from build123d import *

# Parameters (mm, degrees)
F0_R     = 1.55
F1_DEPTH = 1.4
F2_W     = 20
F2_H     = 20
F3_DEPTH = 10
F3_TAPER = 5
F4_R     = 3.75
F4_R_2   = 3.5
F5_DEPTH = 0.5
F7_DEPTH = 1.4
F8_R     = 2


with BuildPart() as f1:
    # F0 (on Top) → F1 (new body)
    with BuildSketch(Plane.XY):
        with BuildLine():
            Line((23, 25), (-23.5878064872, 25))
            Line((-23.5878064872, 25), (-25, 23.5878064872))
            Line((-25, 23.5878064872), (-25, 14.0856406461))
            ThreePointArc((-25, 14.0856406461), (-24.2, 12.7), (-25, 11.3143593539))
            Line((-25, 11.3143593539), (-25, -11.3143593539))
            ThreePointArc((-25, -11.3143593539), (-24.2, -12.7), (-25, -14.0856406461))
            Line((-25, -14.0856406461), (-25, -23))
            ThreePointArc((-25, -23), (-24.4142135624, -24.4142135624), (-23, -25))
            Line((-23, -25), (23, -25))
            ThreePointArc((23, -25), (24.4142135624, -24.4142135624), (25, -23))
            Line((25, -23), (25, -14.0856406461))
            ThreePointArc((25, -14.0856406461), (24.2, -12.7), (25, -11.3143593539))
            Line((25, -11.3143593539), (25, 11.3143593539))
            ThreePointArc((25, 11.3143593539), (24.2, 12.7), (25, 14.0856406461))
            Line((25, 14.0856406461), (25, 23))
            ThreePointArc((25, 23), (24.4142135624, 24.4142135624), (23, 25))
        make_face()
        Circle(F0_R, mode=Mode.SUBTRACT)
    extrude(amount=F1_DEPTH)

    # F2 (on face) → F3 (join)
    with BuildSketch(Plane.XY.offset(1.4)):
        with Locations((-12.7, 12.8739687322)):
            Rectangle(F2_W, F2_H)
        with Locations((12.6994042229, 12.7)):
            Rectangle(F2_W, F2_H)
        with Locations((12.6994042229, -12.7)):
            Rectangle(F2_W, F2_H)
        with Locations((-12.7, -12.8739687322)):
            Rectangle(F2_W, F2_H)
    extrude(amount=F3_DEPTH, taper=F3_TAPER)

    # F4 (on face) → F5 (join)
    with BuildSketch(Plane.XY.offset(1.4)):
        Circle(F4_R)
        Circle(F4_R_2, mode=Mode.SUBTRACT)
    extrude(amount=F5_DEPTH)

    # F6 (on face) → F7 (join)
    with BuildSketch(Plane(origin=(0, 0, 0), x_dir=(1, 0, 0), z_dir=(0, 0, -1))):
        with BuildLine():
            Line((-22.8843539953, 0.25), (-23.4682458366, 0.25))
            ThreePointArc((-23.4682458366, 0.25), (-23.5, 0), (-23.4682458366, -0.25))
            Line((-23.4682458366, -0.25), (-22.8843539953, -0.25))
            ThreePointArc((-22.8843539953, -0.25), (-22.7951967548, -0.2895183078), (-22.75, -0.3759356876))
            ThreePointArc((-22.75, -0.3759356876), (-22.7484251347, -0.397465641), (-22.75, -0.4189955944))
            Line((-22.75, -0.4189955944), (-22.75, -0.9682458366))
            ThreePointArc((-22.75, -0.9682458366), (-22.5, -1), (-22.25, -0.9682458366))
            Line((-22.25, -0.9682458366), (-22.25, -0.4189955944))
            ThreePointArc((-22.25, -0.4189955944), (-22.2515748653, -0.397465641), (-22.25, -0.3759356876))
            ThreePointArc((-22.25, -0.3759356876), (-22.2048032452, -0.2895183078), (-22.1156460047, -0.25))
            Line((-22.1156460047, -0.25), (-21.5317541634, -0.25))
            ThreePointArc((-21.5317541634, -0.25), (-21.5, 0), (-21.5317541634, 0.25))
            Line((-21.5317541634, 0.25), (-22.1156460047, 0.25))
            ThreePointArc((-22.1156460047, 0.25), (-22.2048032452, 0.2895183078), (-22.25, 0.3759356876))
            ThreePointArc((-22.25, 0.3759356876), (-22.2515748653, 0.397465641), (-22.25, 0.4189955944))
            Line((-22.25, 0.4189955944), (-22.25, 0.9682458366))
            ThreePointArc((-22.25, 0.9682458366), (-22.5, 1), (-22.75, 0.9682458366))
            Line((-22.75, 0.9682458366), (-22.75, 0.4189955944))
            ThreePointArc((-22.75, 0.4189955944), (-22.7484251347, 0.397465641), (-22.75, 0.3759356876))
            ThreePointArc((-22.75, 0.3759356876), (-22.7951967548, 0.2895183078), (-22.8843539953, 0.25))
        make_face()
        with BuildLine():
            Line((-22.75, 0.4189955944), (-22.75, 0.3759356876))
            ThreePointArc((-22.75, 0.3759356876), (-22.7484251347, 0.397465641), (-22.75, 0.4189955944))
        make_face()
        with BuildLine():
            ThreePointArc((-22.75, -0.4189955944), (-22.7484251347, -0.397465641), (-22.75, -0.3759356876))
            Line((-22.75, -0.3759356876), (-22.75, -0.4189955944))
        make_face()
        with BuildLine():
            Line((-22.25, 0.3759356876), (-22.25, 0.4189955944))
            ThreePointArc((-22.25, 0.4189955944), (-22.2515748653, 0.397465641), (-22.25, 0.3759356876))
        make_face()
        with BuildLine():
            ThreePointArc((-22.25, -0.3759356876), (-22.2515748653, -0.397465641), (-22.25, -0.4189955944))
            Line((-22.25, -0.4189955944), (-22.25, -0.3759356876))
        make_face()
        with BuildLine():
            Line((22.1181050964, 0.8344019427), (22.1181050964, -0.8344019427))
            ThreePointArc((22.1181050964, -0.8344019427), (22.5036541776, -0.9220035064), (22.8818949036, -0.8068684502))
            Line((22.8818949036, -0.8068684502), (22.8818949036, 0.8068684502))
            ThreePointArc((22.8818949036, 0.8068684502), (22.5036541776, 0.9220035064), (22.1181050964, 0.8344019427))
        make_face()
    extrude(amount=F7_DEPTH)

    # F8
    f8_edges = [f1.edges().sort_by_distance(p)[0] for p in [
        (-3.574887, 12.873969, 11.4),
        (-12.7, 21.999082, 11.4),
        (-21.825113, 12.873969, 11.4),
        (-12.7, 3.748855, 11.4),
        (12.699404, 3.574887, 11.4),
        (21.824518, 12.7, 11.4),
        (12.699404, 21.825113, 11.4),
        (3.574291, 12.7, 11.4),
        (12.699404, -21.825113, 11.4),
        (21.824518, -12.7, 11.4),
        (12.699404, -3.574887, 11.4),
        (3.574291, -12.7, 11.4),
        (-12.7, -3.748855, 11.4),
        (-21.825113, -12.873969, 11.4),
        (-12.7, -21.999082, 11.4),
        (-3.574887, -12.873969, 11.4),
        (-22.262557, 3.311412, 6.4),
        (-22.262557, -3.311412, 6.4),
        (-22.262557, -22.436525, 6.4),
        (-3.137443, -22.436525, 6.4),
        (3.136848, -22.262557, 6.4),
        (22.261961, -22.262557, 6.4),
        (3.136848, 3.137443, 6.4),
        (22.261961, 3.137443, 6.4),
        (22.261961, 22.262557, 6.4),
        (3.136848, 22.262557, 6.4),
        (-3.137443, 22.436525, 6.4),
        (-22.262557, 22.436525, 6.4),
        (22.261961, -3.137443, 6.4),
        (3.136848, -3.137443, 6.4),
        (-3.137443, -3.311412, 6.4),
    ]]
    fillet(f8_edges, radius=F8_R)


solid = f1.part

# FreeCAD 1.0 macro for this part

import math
import FreeCAD as App
import Part
import Sketcher
from FreeCAD import Vector
Q = App.Units.Quantity


def edges_at(feature, points):
    """Names of the edges that pass closest to the given points."""
    edges = feature.Shape.Edges
    near = lambda p: min(range(len(edges)), key=lambda i: edges[i].distToShape(Part.Vertex(*p))[0])
    return sorted({f"Edge{near(p) + 1}" for p in points})


def add_polygon(sketch, points):
    """Adds a closed chain of lines whose ends are joined by coincident constraints."""
    first, n = sketch.GeometryCount, len(points)
    for a, b in zip(points, points[1:] + points[:1]):
        sketch.addGeometry(Part.LineSegment(App.Vector(*a, 0), App.Vector(*b, 0)), False)
    for i in range(n):
        sketch.addConstraint(Sketcher.Constraint("Coincident", first + i, 2, first + (i + 1) % n, 1))

doc = App.newDocument("Part")
body = doc.addObject("PartDesign::Body", "Body")

# Sketch on XY plane
sketch1 = body.newObject("Sketcher::SketchObject", "Sketch")
sketch1.AttachmentSupport = (doc.getObject("XY_Plane"), [""])
sketch1.MapMode = "FlatFace"
sketch1.addGeometry([
    Part.LineSegment(Vector(23, 25, 0), Vector(-23.587806, 25, 0)),  # 0
    Part.LineSegment(Vector(-23.587806, 25, 0), Vector(-25, 23.587806, 0)),  # 1
    Part.LineSegment(Vector(-25, 23.587806, 0), Vector(-25, 14.085641, 0)),  # 2
    Part.ArcOfCircle(Part.Circle(Vector(-25.8, 12.7, 0), Vector(0, 0, 1), 1.6), math.radians(-60), math.radians(60)),  # 3
    Part.LineSegment(Vector(-25, 11.314359, 0), Vector(-25, -11.314359, 0)),  # 4
    Part.ArcOfCircle(Part.Circle(Vector(-25.8, -12.7, 0), Vector(0, 0, 1), 1.6), math.radians(-60), math.radians(60)),  # 5
    Part.LineSegment(Vector(-25, -14.085641, 0), Vector(-25, -23, 0)),  # 6
    Part.ArcOfCircle(Part.Circle(Vector(-23, -23, 0), Vector(0, 0, 1), 2), math.radians(180), math.radians(270)),  # 7
    Part.LineSegment(Vector(-23, -25, 0), Vector(23, -25, 0)),  # 8
    Part.ArcOfCircle(Part.Circle(Vector(23, -23, 0), Vector(0, 0, 1), 2), math.radians(-90), math.radians(0)),  # 9
    Part.LineSegment(Vector(25, -23, 0), Vector(25, -14.085641, 0)),  # 10
    Part.ArcOfCircle(Part.Circle(Vector(25.8, -12.7, 0), Vector(0, 0, 1), 1.6), math.radians(120), math.radians(240)),  # 11
    Part.LineSegment(Vector(25, -11.314359, 0), Vector(25, 11.314359, 0)),  # 12
    Part.ArcOfCircle(Part.Circle(Vector(25.8, 12.7, 0), Vector(0, 0, 1), 1.6), math.radians(120), math.radians(240)),  # 13
    Part.LineSegment(Vector(25, 14.085641, 0), Vector(25, 23, 0)),  # 14
    Part.ArcOfCircle(Part.Circle(Vector(23, 23, 0), Vector(0, 0, 1), 2), math.radians(0), math.radians(90)),  # 15
    Part.Circle(Vector(0, 0, 0), Vector(0, 0, 1), 1.55),  # 16
], False)
sketch1.addConstraint([
    Sketcher.Constraint("Coincident", 0, 2, 1, 1),
    Sketcher.Constraint("Coincident", 1, 2, 2, 1),
    Sketcher.Constraint("Coincident", 2, 2, 3, 2),
    Sketcher.Constraint("Coincident", 3, 1, 4, 1),
    Sketcher.Constraint("Coincident", 4, 2, 5, 2),
    Sketcher.Constraint("Coincident", 5, 1, 6, 1),
    Sketcher.Constraint("Tangent", 6, 2, 7, 1),
    Sketcher.Constraint("Tangent", 7, 2, 8, 1),
    Sketcher.Constraint("Tangent", 8, 2, 9, 1),
    Sketcher.Constraint("Tangent", 9, 2, 10, 1),
    Sketcher.Constraint("Coincident", 10, 2, 11, 2),
    Sketcher.Constraint("Coincident", 11, 1, 12, 1),
    Sketcher.Constraint("Coincident", 12, 2, 13, 2),
    Sketcher.Constraint("Coincident", 13, 1, 14, 1),
    Sketcher.Constraint("Tangent", 14, 2, 15, 1),
    Sketcher.Constraint("Tangent", 15, 2, 0, 1),
    Sketcher.Constraint("Horizontal", 0),
    Sketcher.Constraint("Vertical", 2),
    Sketcher.Constraint("Vertical", 4),
    Sketcher.Constraint("Vertical", 6),
    Sketcher.Constraint("Horizontal", 8),
    Sketcher.Constraint("Vertical", 10),
    Sketcher.Constraint("Vertical", 12),
    Sketcher.Constraint("Vertical", 14),
    Sketcher.Constraint("Coincident", 16, 3, -1, 1),
    Sketcher.Constraint("Equal", 3, 5),
    Sketcher.Constraint("Equal", 7, 9),
    Sketcher.Constraint("Equal", 5, 11),
    Sketcher.Constraint("Equal", 11, 13),
    Sketcher.Constraint("Equal", 9, 15),
    Sketcher.Constraint("Symmetric", 3, 3, 11, 3, -1, 1),
    Sketcher.Constraint("Symmetric", 5, 3, 13, 3, -1, 1),
    Sketcher.Constraint("Symmetric", 7, 3, 15, 3, -1, 1),
    Sketcher.Constraint("Symmetric", 5, 3, 11, 3, -2),
    Sketcher.Constraint("Horizontal", 5, 1, 10, 2),
    Sketcher.Constraint("Horizontal", 4, 2, 11, 1),
    Sketcher.Constraint("Horizontal", 2, 2, 13, 1),
    Sketcher.Constraint("Vertical", 2, 2, 3, 1),
    Sketcher.Constraint("Radius", 7, 2.0),
    Sketcher.Constraint("Diameter", 16, 3.1),
    Sketcher.Constraint("Radius", 3, 1.6),
    Sketcher.Constraint("DistanceX", 8, 1, 8, 2, 46.0),
    Sketcher.Constraint("Angle", 1, Q("-135 deg")),
    Sketcher.Constraint("DistanceY", 7, 3, -1, 1, 23.0),
    Sketcher.Constraint("DistanceX", 3, 3, -1, 1, 25.8),
    Sketcher.Constraint("DistanceY", -1, 1, 3, 3, 12.7),
    Sketcher.Constraint("DistanceX", 0, 2, 0, 1, 46.587806),
])
pad1 = body.newObject("PartDesign::Pad", "Pad")
pad1.Profile = sketch1
pad1.Length = 1.4

# Sketch on XY plane
sketch2 = body.newObject("Sketcher::SketchObject", "Sketch001")
sketch2.AttachmentSupport = (doc.getObject("XY_Plane"), [""])
sketch2.MapMode = "FlatFace"
sketch2.AttachmentOffset = App.Placement(Vector(0, 0, 1.4), App.Rotation())
add_polygon(sketch2, [(-22.7, 22.873969), (-22.7, 2.873969), (-2.7, 2.873969), (-2.7, 22.873969)])  # lines 0-3
add_polygon(sketch2, [(2.699404, 22.7), (2.699404, 2.7), (22.699404, 2.7), (22.699404, 22.7)])  # lines 4-7
add_polygon(sketch2, [(2.699404, -2.7), (2.699404, -22.7), (22.699404, -22.7), (22.699404, -2.7)])  # lines 8-11
add_polygon(sketch2, [(-22.7, -2.873969), (-22.7, -22.873969), (-2.7, -22.873969), (-2.7, -2.873969)])  # lines 12-15
sketch2.addConstraint([
    Sketcher.Constraint("Vertical", 0),
    Sketcher.Constraint("Horizontal", 1),
    Sketcher.Constraint("Vertical", 2),
    Sketcher.Constraint("Horizontal", 3),
    Sketcher.Constraint("Vertical", 4),
    Sketcher.Constraint("Horizontal", 5),
    Sketcher.Constraint("Vertical", 6),
    Sketcher.Constraint("Horizontal", 7),
    Sketcher.Constraint("Vertical", 8),
    Sketcher.Constraint("Horizontal", 9),
    Sketcher.Constraint("Vertical", 10),
    Sketcher.Constraint("Horizontal", 11),
    Sketcher.Constraint("Vertical", 12),
    Sketcher.Constraint("Horizontal", 13),
    Sketcher.Constraint("Vertical", 14),
    Sketcher.Constraint("Horizontal", 15),
    Sketcher.Constraint("Symmetric", 7, 2, 8, 2, -1),
    Sketcher.Constraint("Symmetric", 5, 2, 10, 2, -1),
    Sketcher.Constraint("Symmetric", 3, 2, 12, 2, -1),
    Sketcher.Constraint("Symmetric", 1, 2, 14, 2, -1),
    Sketcher.Constraint("Equal", 3, 5),
    Sketcher.Constraint("Equal", 15, 0),
    Sketcher.Constraint("Equal", 2, 4),
    Sketcher.Constraint("DistanceX", 1, 1, 1, 2, 20.0),
    Sketcher.Constraint("DistanceX", 0, 2, -1, 1, 22.7),
    Sketcher.Constraint("DistanceY", -1, 1, 4, 2, 2.7),
    Sketcher.Constraint("DistanceY", -1, 1, 0, 2, 2.873969),
    Sketcher.Constraint("DistanceX", -1, 1, 4, 2, 2.699404),
])
pad2 = body.newObject("PartDesign::Pad", "Pad001")
pad2.Profile = sketch2
pad2.Length = 10
pad2.TaperAngle = -5

# Sketch on XY plane
sketch3 = body.newObject("Sketcher::SketchObject", "Sketch002")
sketch3.AttachmentSupport = (doc.getObject("XY_Plane"), [""])
sketch3.MapMode = "FlatFace"
sketch3.AttachmentOffset = App.Placement(Vector(0, 0, 1.4), App.Rotation())
sketch3.addGeometry([
    Part.Circle(Vector(0, 0, 0), Vector(0, 0, 1), 3.75),
    Part.Circle(Vector(0, 0, 0), Vector(0, 0, 1), 3.5),
], False)
sketch3.addConstraint([
    Sketcher.Constraint("Coincident", 0, 3, -1, 1),
    Sketcher.Constraint("Coincident", 1, 3, -1, 1),
    Sketcher.Constraint("Diameter", 1, 7.0),
    Sketcher.Constraint("Diameter", 0, 7.5),
])
pad3 = body.newObject("PartDesign::Pad", "Pad002")
pad3.Profile = sketch3
pad3.Length = 0.5

# Sketch on XY plane
sketch4 = body.newObject("Sketcher::SketchObject", "Sketch003")
sketch4.AttachmentSupport = (doc.getObject("XY_Plane"), [""])
sketch4.MapMode = "FlatFace"
sketch4.addGeometry([
    Part.LineSegment(Vector(-22.884354, -0.25, 0), Vector(-23.468246, -0.25, 0)),  # 0
    Part.ArcOfCircle(Part.Circle(Vector(-22.5, 0, 0), Vector(0, 0, 1), 1), math.radians(165.522488), math.radians(194.477512)),  # 1
    Part.LineSegment(Vector(-23.468246, 0.25, 0), Vector(-22.884354, 0.25, 0)),  # 2
    Part.ArcOfCircle(Part.Circle(Vector(-22.89638, 0.397466, 0), Vector(0, 0, 1), 0.147955), math.radians(-85.337637), math.radians(-8.3672)),  # 3
    Part.LineSegment(Vector(-22.75, 0.375936, 0), Vector(-22.75, 0.968246, 0)),  # 4
    Part.ArcOfCircle(Part.Circle(Vector(-22.5, 0, 0), Vector(0, 0, 1), 1), math.radians(75.522488), math.radians(104.477512)),  # 5
    Part.LineSegment(Vector(-22.25, 0.968246, 0), Vector(-22.25, 0.375936, 0)),  # 6
    Part.ArcOfCircle(Part.Circle(Vector(-22.10362, 0.397466, 0), Vector(0, 0, 1), 0.147955), math.radians(-171.6328), math.radians(-94.662363)),  # 7
    Part.LineSegment(Vector(-22.115646, 0.25, 0), Vector(-21.531754, 0.25, 0)),  # 8
    Part.ArcOfCircle(Part.Circle(Vector(-22.5, 0, 0), Vector(0, 0, 1), 1), math.radians(-14.477512), math.radians(14.477512)),  # 9
    Part.LineSegment(Vector(-21.531754, -0.25, 0), Vector(-22.115646, -0.25, 0)),  # 10
    Part.ArcOfCircle(Part.Circle(Vector(-22.10362, -0.397466, 0), Vector(0, 0, 1), 0.147955), math.radians(94.662363), math.radians(171.6328)),  # 11
    Part.LineSegment(Vector(-22.25, -0.375936, 0), Vector(-22.25, -0.968246, 0)),  # 12
    Part.ArcOfCircle(Part.Circle(Vector(-22.5, 0, 0), Vector(0, 0, 1), 1), math.radians(-104.477512), math.radians(-75.522488)),  # 13
    Part.LineSegment(Vector(-22.75, -0.968246, 0), Vector(-22.75, -0.375936, 0)),  # 14
    Part.ArcOfCircle(Part.Circle(Vector(-22.89638, -0.397466, 0), Vector(0, 0, 1), 0.147955), math.radians(8.3672), math.radians(85.337637)),  # 15
    Part.LineSegment(Vector(22.118105, -0.834402, 0), Vector(22.118105, 0.834402, 0)),  # 16
    Part.ArcOfCircle(Part.Circle(Vector(22.475895, 0.151944, 0), Vector(0, 0, 1), 0.77056), math.radians(58.20443), math.radians(117.666502)),  # 17
    Part.LineSegment(Vector(22.881895, 0.806868, 0), Vector(22.881895, -0.806868, 0)),  # 18
    Part.ArcOfCircle(Part.Circle(Vector(22.475895, -0.151944, 0), Vector(0, 0, 1), 0.77056), math.radians(-117.666502), math.radians(-58.20443)),  # 19
], False)
sketch4.addConstraint([
    Sketcher.Constraint("Coincident", 0, 2, 1, 2),
    Sketcher.Constraint("Coincident", 1, 1, 2, 1),
    Sketcher.Constraint("Coincident", 2, 2, 3, 1),
    Sketcher.Constraint("Coincident", 3, 2, 4, 1),
    Sketcher.Constraint("Coincident", 4, 2, 5, 2),
    Sketcher.Constraint("Coincident", 5, 1, 6, 1),
    Sketcher.Constraint("Coincident", 6, 2, 7, 1),
    Sketcher.Constraint("Coincident", 7, 2, 8, 1),
    Sketcher.Constraint("Coincident", 8, 2, 9, 2),
    Sketcher.Constraint("Coincident", 9, 1, 10, 1),
    Sketcher.Constraint("Coincident", 10, 2, 11, 1),
    Sketcher.Constraint("Coincident", 11, 2, 12, 1),
    Sketcher.Constraint("Coincident", 12, 2, 13, 2),
    Sketcher.Constraint("Coincident", 13, 1, 14, 1),
    Sketcher.Constraint("Coincident", 14, 2, 15, 1),
    Sketcher.Constraint("Coincident", 15, 2, 0, 1),
    Sketcher.Constraint("Coincident", 16, 2, 17, 2),
    Sketcher.Constraint("Coincident", 17, 1, 18, 1),
    Sketcher.Constraint("Coincident", 18, 2, 19, 2),
    Sketcher.Constraint("Coincident", 19, 1, 16, 1),
    Sketcher.Constraint("Horizontal", 0),
    Sketcher.Constraint("Horizontal", 2),
    Sketcher.Constraint("Vertical", 4),
    Sketcher.Constraint("Vertical", 6),
    Sketcher.Constraint("Horizontal", 8),
    Sketcher.Constraint("Horizontal", 10),
    Sketcher.Constraint("Vertical", 12),
    Sketcher.Constraint("Vertical", 14),
    Sketcher.Constraint("Vertical", 16),
    Sketcher.Constraint("Vertical", 18),
    Sketcher.Constraint("Coincident", 5, 3, 1, 3),
    Sketcher.Constraint("Coincident", 9, 3, 1, 3),
    Sketcher.Constraint("Coincident", 13, 3, 1, 3),
    Sketcher.Constraint("Equal", 1, 5),
    Sketcher.Constraint("Equal", 3, 7),
    Sketcher.Constraint("Equal", 5, 9),
    Sketcher.Constraint("Equal", 7, 11),
    Sketcher.Constraint("Equal", 9, 13),
    Sketcher.Constraint("Equal", 11, 15),
    Sketcher.Constraint("Equal", 17, 19),
    Sketcher.Constraint("Symmetric", 7, 3, 11, 3, -1),
    Sketcher.Constraint("Symmetric", 3, 3, 15, 3, -1),
    Sketcher.Constraint("Symmetric", 17, 3, 19, 3, -1),
    Sketcher.Constraint("Symmetric", 0, 2, 1, 1, -1),
    Sketcher.Constraint("Horizontal", 3, 3, 7, 3),
    Sketcher.Constraint("Horizontal", 4, 2, 5, 1),
    Sketcher.Constraint("Horizontal", 3, 2, 6, 2),
    Sketcher.Constraint("Horizontal", 2, 2, 7, 2),
    Sketcher.Constraint("Horizontal", 0, 2, 9, 1),
    Sketcher.Constraint("Horizontal", 12, 2, 13, 1),
    Sketcher.Constraint("Vertical", 6, 2, 11, 2),
    Sketcher.Constraint("Radius", 1, 1.0),
    Sketcher.Constraint("DistanceX", 1, 3, -1, 1, 22.5),
    Sketcher.Constraint("DistanceY", 0, 2, 1, 1, 0.5),
    Sketcher.Constraint("DistanceX", 4, 2, 5, 1, 0.5),
    Sketcher.Constraint("Radius", 17, 0.77056),
    Sketcher.Constraint("Radius", 3, 0.147955),
    Sketcher.Constraint("DistanceX", 17, 3, 17, 1, 0.406),
    Sketcher.Constraint("DistanceX", 0, 2, 0, 1, 0.583892),
    Sketcher.Constraint("DistanceY", 4, 1, 4, 2, 0.59231),
    Sketcher.Constraint("DistanceY", -1, 1, 16, 2, 0.834402),
    Sketcher.Constraint("DistanceY", 18, 2, 18, 1, 1.613737),
    Sketcher.Constraint("DistanceX", 8, 2, 16, 2, 43.649859),
])
pad4 = body.newObject("PartDesign::Pad", "Pad003")
pad4.Profile = sketch4
pad4.Length = 1.4
pad4.Reversed = True
doc.recompute()

fillet = body.newObject("PartDesign::Fillet", "Fillet")
fillet.Base = (pad4, edges_at(pad4, [
    (-3.575, 12.874, 11.4),
    (-12.7, 21.999, 11.4),
    (-21.825, 12.874, 11.4),
    (-12.7, 3.749, 11.4),
    (12.699, 3.575, 11.4),
    (21.825, 12.7, 11.4),
    (12.699, 21.825, 11.4),
    (3.574, 12.7, 11.4),
    (12.699, -21.825, 11.4),
    (21.825, -12.7, 11.4),
    (12.699, -3.575, 11.4),
    (3.574, -12.7, 11.4),
    (-12.7, -3.749, 11.4),
    (-21.825, -12.874, 11.4),
    (-12.7, -21.999, 11.4),
    (-3.575, -12.874, 11.4),
    (-22.263, 3.311, 6.4),
    (-22.263, -3.311, 6.4),
    (-22.263, -22.437, 6.4),
    (-3.137, -22.437, 6.4),
    (3.137, -22.263, 6.4),
    (22.262, -22.263, 6.4),
    (3.137, 3.137, 6.4),
    (22.262, 3.137, 6.4),
    (22.262, 22.263, 6.4),
    (3.137, 22.263, 6.4),
    (-3.137, 22.437, 6.4),
    (-22.263, 22.437, 6.4),
    (22.262, -3.137, 6.4),
    (3.137, -3.137, 6.4),
    (-3.137, -3.311, 6.4),
]))
fillet.Radius = 2

doc.recompute()
